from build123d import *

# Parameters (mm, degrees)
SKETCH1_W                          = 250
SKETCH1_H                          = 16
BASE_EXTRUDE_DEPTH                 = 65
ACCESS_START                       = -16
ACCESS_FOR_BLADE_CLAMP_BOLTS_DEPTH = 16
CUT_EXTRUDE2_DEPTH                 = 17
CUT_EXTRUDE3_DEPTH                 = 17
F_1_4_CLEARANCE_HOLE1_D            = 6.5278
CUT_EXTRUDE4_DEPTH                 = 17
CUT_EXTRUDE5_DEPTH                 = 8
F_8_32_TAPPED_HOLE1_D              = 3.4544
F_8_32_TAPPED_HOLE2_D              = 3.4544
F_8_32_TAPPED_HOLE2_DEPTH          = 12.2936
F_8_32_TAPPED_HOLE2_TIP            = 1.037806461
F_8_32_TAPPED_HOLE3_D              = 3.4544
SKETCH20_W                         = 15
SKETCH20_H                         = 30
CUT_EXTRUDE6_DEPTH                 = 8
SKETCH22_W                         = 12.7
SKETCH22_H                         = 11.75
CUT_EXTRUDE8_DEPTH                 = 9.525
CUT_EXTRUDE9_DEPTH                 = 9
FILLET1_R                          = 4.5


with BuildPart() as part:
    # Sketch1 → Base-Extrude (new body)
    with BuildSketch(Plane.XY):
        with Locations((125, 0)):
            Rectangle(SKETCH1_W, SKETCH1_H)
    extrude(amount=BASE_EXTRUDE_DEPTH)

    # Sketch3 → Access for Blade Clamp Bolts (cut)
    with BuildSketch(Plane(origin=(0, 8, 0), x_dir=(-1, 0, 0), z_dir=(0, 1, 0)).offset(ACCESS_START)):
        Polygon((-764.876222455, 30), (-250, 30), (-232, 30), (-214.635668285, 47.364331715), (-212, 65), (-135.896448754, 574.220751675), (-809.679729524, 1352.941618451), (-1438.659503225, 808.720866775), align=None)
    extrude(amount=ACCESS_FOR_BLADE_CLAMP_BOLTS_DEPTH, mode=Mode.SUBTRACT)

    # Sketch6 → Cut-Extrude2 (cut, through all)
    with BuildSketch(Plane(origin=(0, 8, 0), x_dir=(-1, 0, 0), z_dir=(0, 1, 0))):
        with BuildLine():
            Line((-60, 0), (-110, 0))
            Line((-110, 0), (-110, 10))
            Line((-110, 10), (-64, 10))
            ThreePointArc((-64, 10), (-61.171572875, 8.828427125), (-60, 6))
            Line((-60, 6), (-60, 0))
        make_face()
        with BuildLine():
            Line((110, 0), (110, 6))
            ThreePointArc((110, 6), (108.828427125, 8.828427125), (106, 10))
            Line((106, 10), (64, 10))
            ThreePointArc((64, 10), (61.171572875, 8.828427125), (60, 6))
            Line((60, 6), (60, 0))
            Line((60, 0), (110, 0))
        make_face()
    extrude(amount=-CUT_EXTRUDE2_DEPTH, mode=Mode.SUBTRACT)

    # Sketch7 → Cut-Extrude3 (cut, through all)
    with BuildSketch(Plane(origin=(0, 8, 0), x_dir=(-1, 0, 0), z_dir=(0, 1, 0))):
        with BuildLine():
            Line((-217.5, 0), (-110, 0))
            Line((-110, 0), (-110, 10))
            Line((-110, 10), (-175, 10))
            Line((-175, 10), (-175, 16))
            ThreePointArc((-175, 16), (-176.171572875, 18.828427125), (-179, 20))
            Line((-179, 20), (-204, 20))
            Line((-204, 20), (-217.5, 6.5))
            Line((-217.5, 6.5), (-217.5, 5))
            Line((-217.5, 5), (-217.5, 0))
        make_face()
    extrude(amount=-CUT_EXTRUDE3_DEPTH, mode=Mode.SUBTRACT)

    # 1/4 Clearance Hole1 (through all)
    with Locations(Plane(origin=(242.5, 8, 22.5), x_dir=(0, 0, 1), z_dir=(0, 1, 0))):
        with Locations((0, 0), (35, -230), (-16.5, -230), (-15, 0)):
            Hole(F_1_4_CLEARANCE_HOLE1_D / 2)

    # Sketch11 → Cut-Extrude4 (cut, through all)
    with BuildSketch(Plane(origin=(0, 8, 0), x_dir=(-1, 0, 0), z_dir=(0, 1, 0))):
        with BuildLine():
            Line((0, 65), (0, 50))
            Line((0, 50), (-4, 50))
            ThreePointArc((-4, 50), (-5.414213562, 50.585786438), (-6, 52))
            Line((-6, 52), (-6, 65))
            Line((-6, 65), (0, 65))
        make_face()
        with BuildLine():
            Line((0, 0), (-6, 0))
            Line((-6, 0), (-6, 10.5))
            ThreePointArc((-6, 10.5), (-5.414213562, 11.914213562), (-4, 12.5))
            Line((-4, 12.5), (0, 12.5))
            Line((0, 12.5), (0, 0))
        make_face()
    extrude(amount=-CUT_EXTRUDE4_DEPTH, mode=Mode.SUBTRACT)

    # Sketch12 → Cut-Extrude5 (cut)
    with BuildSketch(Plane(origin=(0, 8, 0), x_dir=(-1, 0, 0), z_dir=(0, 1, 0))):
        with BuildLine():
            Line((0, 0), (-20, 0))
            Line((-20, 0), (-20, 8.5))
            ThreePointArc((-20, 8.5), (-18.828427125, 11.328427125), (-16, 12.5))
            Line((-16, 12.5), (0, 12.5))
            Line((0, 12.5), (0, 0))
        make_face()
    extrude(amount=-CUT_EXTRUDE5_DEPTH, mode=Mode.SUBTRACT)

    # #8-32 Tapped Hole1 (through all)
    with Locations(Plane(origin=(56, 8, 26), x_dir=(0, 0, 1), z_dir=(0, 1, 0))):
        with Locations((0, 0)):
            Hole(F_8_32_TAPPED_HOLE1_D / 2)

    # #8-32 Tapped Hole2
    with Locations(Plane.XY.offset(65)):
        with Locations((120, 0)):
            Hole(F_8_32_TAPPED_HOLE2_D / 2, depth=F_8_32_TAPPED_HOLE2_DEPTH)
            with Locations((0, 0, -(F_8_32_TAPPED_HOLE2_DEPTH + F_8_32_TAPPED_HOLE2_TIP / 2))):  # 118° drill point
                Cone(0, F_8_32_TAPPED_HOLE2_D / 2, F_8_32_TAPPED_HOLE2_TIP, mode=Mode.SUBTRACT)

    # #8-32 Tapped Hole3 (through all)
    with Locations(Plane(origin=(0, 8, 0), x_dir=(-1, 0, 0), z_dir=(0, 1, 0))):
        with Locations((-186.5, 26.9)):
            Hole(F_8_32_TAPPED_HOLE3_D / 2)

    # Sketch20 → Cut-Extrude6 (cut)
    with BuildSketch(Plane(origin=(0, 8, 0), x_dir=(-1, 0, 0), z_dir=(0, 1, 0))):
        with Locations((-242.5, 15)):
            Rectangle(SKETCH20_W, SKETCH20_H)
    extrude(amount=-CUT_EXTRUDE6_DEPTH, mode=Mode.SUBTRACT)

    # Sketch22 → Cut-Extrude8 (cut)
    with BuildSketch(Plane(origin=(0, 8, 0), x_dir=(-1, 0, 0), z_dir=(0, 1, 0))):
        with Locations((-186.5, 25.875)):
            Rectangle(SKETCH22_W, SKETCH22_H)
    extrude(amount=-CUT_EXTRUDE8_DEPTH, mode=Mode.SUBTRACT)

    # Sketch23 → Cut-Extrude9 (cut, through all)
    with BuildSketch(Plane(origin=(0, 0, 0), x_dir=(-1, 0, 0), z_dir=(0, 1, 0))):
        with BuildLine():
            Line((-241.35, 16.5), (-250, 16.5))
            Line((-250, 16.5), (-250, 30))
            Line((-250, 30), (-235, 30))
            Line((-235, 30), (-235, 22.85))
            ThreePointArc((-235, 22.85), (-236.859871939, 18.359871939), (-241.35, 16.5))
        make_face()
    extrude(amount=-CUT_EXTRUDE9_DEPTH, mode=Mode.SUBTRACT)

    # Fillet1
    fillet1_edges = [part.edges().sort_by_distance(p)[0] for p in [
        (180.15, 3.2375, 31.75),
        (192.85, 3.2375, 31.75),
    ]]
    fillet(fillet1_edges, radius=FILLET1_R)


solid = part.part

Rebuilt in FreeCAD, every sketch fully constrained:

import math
import FreeCAD as App
import Part
import Sketcher
from FreeCAD import Vector
Q = App.Units.Quantity


def edges_at(feature, points):
    """Names of the edges that pass closest to the given points."""
    edges = feature.Shape.Edges
    near = lambda p: min(range(len(edges)), key=lambda i: edges[i].distToShape(Part.Vertex(*p))[0])
    return sorted({f"Edge{near(p) + 1}" for p in points})


def add_polygon(sketch, points):
    """Adds a closed chain of lines whose ends are joined by coincident constraints."""
    first, n = sketch.GeometryCount, len(points)
    for a, b in zip(points, points[1:] + points[:1]):
        sketch.addGeometry(Part.LineSegment(App.Vector(*a, 0), App.Vector(*b, 0)), False)
    for i in range(n):
        sketch.addConstraint(Sketcher.Constraint("Coincident", first + i, 2, first + (i + 1) % n, 1))

doc = App.newDocument("Part")
body = doc.addObject("PartDesign::Body", "Body")

# Sketch on XY plane
sketch1 = body.newObject("Sketcher::SketchObject", "Sketch")
sketch1.AttachmentSupport = (doc.getObject("XY_Plane"), [""])
sketch1.MapMode = "FlatFace"
add_polygon(sketch1, [(0, 8), (0, -8), (250, -8), (250, 8)])  # lines 0-3
sketch1.addConstraint([
    Sketcher.Constraint("Vertical", 0),
    Sketcher.Constraint("Horizontal", 1),
    Sketcher.Constraint("Vertical", 2),
    Sketcher.Constraint("Horizontal", 3),
    Sketcher.Constraint("Symmetric", 0, 2, 3, 2, -1, 1),
    Sketcher.Constraint("DistanceX", 1, 1, 1, 2, Q("250 mm")),
    Sketcher.Constraint("DistanceY", 0, 2, 0, 1, Q("16 mm")),
])
pad1 = body.newObject("PartDesign::Pad", "Pad")
pad1.Profile = sketch1
pad1.Length = 65

# Sketch on XZ plane
sketch2 = body.newObject("Sketcher::SketchObject", "Sketch001")
sketch2.AttachmentSupport = (doc.getObject("XZ_Plane"), [""])
sketch2.MapMode = "FlatFace"
sketch2.AttachmentOffset = App.Placement(Vector(0, 0, 8), App.Rotation())
add_polygon(sketch2, [(765, 30), (232, 30), (215, 47), (212, 65), (136, 574), (810, 1353), (1439, 809)])  # lines 0-6
sketch2.addConstraint([
    Sketcher.Constraint("Horizontal", 0),
    Sketcher.Constraint("Parallel", 2, 3),
    Sketcher.Constraint("Perpendicular", 4, 5),
    Sketcher.Constraint("Perpendicular", 5, 6),
    Sketcher.Constraint("Equal", 4, 6),
    Sketcher.Constraint("Angle", 1, Q("135 deg")),
    Sketcher.Constraint("DistanceX", -1, 1, 0, 2, Q("232 mm")),
    Sketcher.Constraint("DistanceY", -1, 1, 0, 2, Q("30 mm")),
    Sketcher.Constraint("DistanceX", -1, 1, 2, 2, Q("212 mm")),
    Sketcher.Constraint("DistanceY", -1, 1, 2, 2, Q("65 mm")),
    Sketcher.Constraint("Angle", 2, Q("98.5 deg")),
    Sketcher.Constraint("DistanceX", 0, 2, 0, 1, Q("532.876222 mm")),
    Sketcher.Constraint("DistanceX", -1, 1, 3, 2, Q("135.896449 mm")),
    Sketcher.Constraint("DistanceX", -1, 1, 4, 2, Q("809.67973 mm")),
])
pocket1 = body.newObject("PartDesign::Pocket", "Pocket")
pocket1.Profile = sketch2
pocket1.Length = 16

# Sketch on XZ plane
sketch3 = body.newObject("Sketcher::SketchObject", "Sketch002")
sketch3.AttachmentSupport = (doc.getObject("XZ_Plane"), [""])
sketch3.MapMode = "FlatFace"
sketch3.AttachmentOffset = App.Placement(Vector(0, 0, -8), App.Rotation())
sketch3.addGeometry([
    Part.LineSegment(Vector(110, 0, 0), Vector(60, 0, 0)),  # 0
    Part.LineSegment(Vector(60, 0, 0), Vector(60, 6, 0)),  # 1
    Part.ArcOfCircle(Part.Circle(Vector(64, 6, 0), Vector(0, 0, 1), 4), math.radians(90), math.radians(180)),  # 2
    Part.LineSegment(Vector(64, 10, 0), Vector(110, 10, 0)),  # 3
    Part.LineSegment(Vector(110, 10, 0), Vector(110, 0, 0)),  # 4
    Part.LineSegment(Vector(-110, 0, 0), Vector(-110, 6, 0)),  # 5
    Part.ArcOfCircle(Part.Circle(Vector(-106, 6, 0), Vector(0, 0, 1), 4), math.radians(90), math.radians(180)),  # 6
    Part.LineSegment(Vector(-106, 10, 0), Vector(-64, 10, 0)),  # 7
    Part.ArcOfCircle(Part.Circle(Vector(-64, 6, 0), Vector(0, 0, 1), 4), math.radians(0), math.radians(90)),  # 8
    Part.LineSegment(Vector(-60, 6, 0), Vector(-60, 0, 0)),  # 9
    Part.LineSegment(Vector(-60, 0, 0), Vector(-110, 0, 0)),  # 10
], False)
sketch3.addConstraint([
    Sketcher.Constraint("Coincident", 0, 2, 1, 1),
    Sketcher.Constraint("Tangent", 1, 2, 2, 2),
    Sketcher.Constraint("Tangent", 2, 1, 3, 1),
    Sketcher.Constraint("Coincident", 3, 2, 4, 1),
    Sketcher.Constraint("Coincident", 4, 2, 0, 1),
    Sketcher.Constraint("Tangent", 5, 2, 6, 2),
    Sketcher.Constraint("Tangent", 6, 1, 7, 1),
    Sketcher.Constraint("Tangent", 7, 2, 8, 2),
    Sketcher.Constraint("Tangent", 8, 1, 9, 1),
    Sketcher.Constraint("Coincident", 9, 2, 10, 1),
    Sketcher.Constraint("Coincident", 10, 2, 5, 1),
    Sketcher.Constraint("Horizontal", 0),
    Sketcher.Constraint("Vertical", 1),
    Sketcher.Constraint("Horizontal", 3),
    Sketcher.Constraint("Vertical", 4),
    Sketcher.Constraint("Vertical", 5),
    Sketcher.Constraint("Horizontal", 7),
    Sketcher.Constraint("Vertical", 9),
    Sketcher.Constraint("Horizontal", 10),
    Sketcher.Constraint("Equal", 2, 6),
    Sketcher.Constraint("Equal", 6, 8),
    Sketcher.Constraint("Symmetric", 0, 2, 9, 2, -1, 1),
    Sketcher.Constraint("Symmetric", 4, 2, 10, 2, -2),
    Sketcher.Constraint("Horizontal", 2, 3, 6, 3),
    Sketcher.Constraint("Radius", 2, Q("4 mm")),
    Sketcher.Constraint("DistanceX", 0, 2, 0, 1, Q("50 mm")),
    Sketcher.Constraint("DistanceY", 1, 1, 1, 2, Q("6 mm")),
    Sketcher.Constraint("DistanceX", -1, 1, 2, 3, Q("64 mm")),
])
pocket2 = body.newObject("PartDesign::Pocket", "Pocket001")
pocket2.Profile = sketch3
pocket2.Type = "ThroughAll"
pocket2.Reversed = True

# Sketch on XZ plane
sketch4 = body.newObject("Sketcher::SketchObject", "Sketch003")
sketch4.AttachmentSupport = (doc.getObject("XZ_Plane"), [""])
sketch4.MapMode = "FlatFace"
sketch4.AttachmentOffset = App.Placement(Vector(0, 0, -8), App.Rotation())
sketch4.addGeometry([
    Part.LineSegment(Vector(217.5, 0, 0), Vector(110, 0, 0)),  # 0
    Part.LineSegment(Vector(110, 0, 0), Vector(110, 10, 0)),  # 1
    Part.LineSegment(Vector(110, 10, 0), Vector(175, 10, 0)),  # 2
    Part.LineSegment(Vector(175, 10, 0), Vector(175, 16, 0)),  # 3
    Part.ArcOfCircle(Part.Circle(Vector(179, 16, 0), Vector(0, 0, 1), 4), math.radians(90), math.radians(180)),  # 4
    Part.LineSegment(Vector(179, 20, 0), Vector(204, 20, 0)),  # 5
    Part.LineSegment(Vector(204, 20, 0), Vector(217.5, 6.5, 0)),  # 6
    Part.LineSegment(Vector(217.5, 6.5, 0), Vector(217.5, 0, 0)),  # 7
], False)
sketch4.addConstraint([
    Sketcher.Constraint("Coincident", 0, 2, 1, 1),
    Sketcher.Constraint("Coincident", 1, 2, 2, 1),
    Sketcher.Constraint("Coincident", 2, 2, 3, 1),
    Sketcher.Constraint("Tangent", 3, 2, 4, 2),
    Sketcher.Constraint("Tangent", 4, 1, 5, 1),
    Sketcher.Constraint("Coincident", 5, 2, 6, 1),
    Sketcher.Constraint("Coincident", 6, 2, 7, 1),
    Sketcher.Constraint("Coincident", 7, 2, 0, 1),
    Sketcher.Constraint("Horizontal", 0),
    Sketcher.Constraint("Vertical", 1),
    Sketcher.Constraint("Horizontal", 2),
    Sketcher.Constraint("Vertical", 3),
    Sketcher.Constraint("Horizontal", 5),
    Sketcher.Constraint("Vertical", 7),
    Sketcher.Constraint("PointOnObject", 0, 2, -1),
    Sketcher.Constraint("Radius", 4, Q("4 mm")),
    Sketcher.Constraint("DistanceX", 2, 1, 2, 2, Q("65 mm")),
    Sketcher.Constraint("DistanceX", 5, 1, 5, 2, Q("25 mm")),
    Sketcher.Constraint("DistanceY", 1, 1, 1, 2, Q("10 mm")),
    Sketcher.Constraint("DistanceY", 3, 1, 3, 2, Q("6 mm")),
    Sketcher.Constraint("Angle", 6, Q("-45 deg")),
    Sketcher.Constraint("DistanceX", 0, 2, 0, 1, Q("107.5 mm")),
    Sketcher.Constraint("DistanceX", -1, 1, 4, 3, Q("179 mm")),
])
pocket3 = body.newObject("PartDesign::Pocket", "Pocket002")
pocket3.Profile = sketch4
pocket3.Type = "ThroughAll"
pocket3.Reversed = True

# Sketch on XZ plane
sketch5 = body.newObject("Sketcher::SketchObject", "Sketch004")
sketch5.AttachmentSupport = (doc.getObject("XZ_Plane"), [""])
sketch5.MapMode = "FlatFace"
sketch5.AttachmentOffset = App.Placement(Vector(0, 0, -8), App.Rotation())
sketch5.addGeometry([
    Part.Circle(Vector(242.5, 22.5, 0), Vector(0, 0, 1), 3.3),
    Part.Circle(Vector(12.5, 57.5, 0), Vector(0, 0, 1), 3.3),
    Part.Circle(Vector(12.5, 6, 0), Vector(0, 0, 1), 3.3),
    Part.Circle(Vector(242.5, 7.5, 0), Vector(0, 0, 1), 3.3),
], False)
sketch5.addConstraint([
    Sketcher.Constraint("Equal", 0, 1),
    Sketcher.Constraint("Equal", 1, 2),
    Sketcher.Constraint("Equal", 2, 3),
    Sketcher.Constraint("Vertical", 1, 3, 2, 3),
    Sketcher.Constraint("Vertical", 0, 3, 3, 3),
    Sketcher.Constraint("DistanceY", -1, 1, 2, 3, Q("6 mm")),
    Sketcher.Constraint("DistanceX", 1, 3, 0, 3, Q("230 mm")),
    Sketcher.Constraint("DistanceY", 0, 3, 1, 3, Q("35 mm")),
    Sketcher.Constraint("DistanceY", 3, 3, 0, 3, Q("15 mm")),
    Sketcher.Constraint("Diameter", 0, Q("6.5278 mm")),
    Sketcher.Constraint("DistanceX", -1, 1, 0, 3, Q("242.5 mm")),
    Sketcher.Constraint("DistanceY", -1, 1, 0, 3, Q("22.5 mm")),
])
doc.recompute()
hole = body.newObject("PartDesign::Hole", "Hole")
hole.Profile = sketch5
hole.ThreadType = "None"
hole.Diameter = 6.5278
hole.DepthType = "ThroughAll"
hole.Reversed = True

# Sketch on XZ plane
sketch6 = body.newObject("Sketcher::SketchObject", "Sketch005")
sketch6.AttachmentSupport = (doc.getObject("XZ_Plane"), [""])
sketch6.MapMode = "FlatFace"
sketch6.AttachmentOffset = App.Placement(Vector(0, 0, -8), App.Rotation())
sketch6.addGeometry([
    Part.LineSegment(Vector(0, 50, 0), Vector(0, 65, 0)),  # 0
    Part.LineSegment(Vector(0, 65, 0), Vector(6, 65, 0)),  # 1
    Part.LineSegment(Vector(6, 65, 0), Vector(6, 52, 0)),  # 2
    Part.ArcOfCircle(Part.Circle(Vector(4, 52, 0), Vector(0, 0, 1), 2), math.radians(-90), math.radians(0)),  # 3
    Part.LineSegment(Vector(4, 50, 0), Vector(0, 50, 0)),  # 4
    Part.LineSegment(Vector(6, 0, 0), Vector(0, 0, 0)),  # 5
    Part.LineSegment(Vector(0, 0, 0), Vector(0, 12.5, 0)),  # 6
    Part.LineSegment(Vector(0, 12.5, 0), Vector(4, 12.5, 0)),  # 7
    Part.ArcOfCircle(Part.Circle(Vector(4, 10.5, 0), Vector(0, 0, 1), 2), math.radians(0), math.radians(90)),  # 8
    Part.LineSegment(Vector(6, 10.5, 0), Vector(6, 0, 0)),  # 9
], False)
sketch6.addConstraint([
    Sketcher.Constraint("Coincident", 0, 2, 1, 1),
    Sketcher.Constraint("Coincident", 1, 2, 2, 1),
    Sketcher.Constraint("Tangent", 2, 2, 3, 2),
    Sketcher.Constraint("Tangent", 3, 1, 4, 1),
    Sketcher.Constraint("Coincident", 4, 2, 0, 1),
    Sketcher.Constraint("Coincident", 5, 2, 6, 1),
    Sketcher.Constraint("Coincident", 6, 2, 7, 1),
    Sketcher.Constraint("Tangent", 7, 2, 8, 2),
    Sketcher.Constraint("Tangent", 8, 1, 9, 1),
    Sketcher.Constraint("Coincident", 9, 2, 5, 1),
    Sketcher.Constraint("Vertical", 0),
    Sketcher.Constraint("Horizontal", 1),
    Sketcher.Constraint("Vertical", 2),
    Sketcher.Constraint("Horizontal", 4),
    Sketcher.Constraint("Horizontal", 5),
    Sketcher.Constraint("Vertical", 6),
    Sketcher.Constraint("Horizontal", 7),
    Sketcher.Constraint("Vertical", 9),
    Sketcher.Constraint("Coincident", 5, 2, -1, 1),
    Sketcher.Constraint("Equal", 3, 8),
    Sketcher.Constraint("PointOnObject", 0, 2, -2),
    Sketcher.Constraint("Vertical", 3, 3, 8, 3),
    Sketcher.Constraint("Radius", 3, Q("2 mm")),
    Sketcher.Constraint("DistanceX", 1, 1, 1, 2, Q("6 mm")),
    Sketcher.Constraint("DistanceY", 0, 1, 0, 2, Q("15 mm")),
    Sketcher.Constraint("DistanceY", 6, 1, 6, 2, Q("12.5 mm")),
    Sketcher.Constraint("DistanceY", -1, 1, 3, 3, Q("52 mm")),
])
pocket4 = body.newObject("PartDesign::Pocket", "Pocket003")
pocket4.Profile = sketch6
pocket4.Type = "ThroughAll"
pocket4.Reversed = True

# Sketch on XZ plane
sketch7 = body.newObject("Sketcher::SketchObject", "Sketch006")
sketch7.AttachmentSupport = (doc.getObject("XZ_Plane"), [""])
sketch7.MapMode = "FlatFace"
sketch7.AttachmentOffset = App.Placement(Vector(0, 0, -8), App.Rotation())
sketch7.addGeometry([
    Part.LineSegment(Vector(20, 0, 0), Vector(0, 0, 0)),  # 0
    Part.LineSegment(Vector(0, 0, 0), Vector(0, 12.5, 0)),  # 1
    Part.LineSegment(Vector(0, 12.5, 0), Vector(16, 12.5, 0)),  # 2
    Part.ArcOfCircle(Part.Circle(Vector(16, 8.5, 0), Vector(0, 0, 1), 4), math.radians(0), math.radians(90)),  # 3
    Part.LineSegment(Vector(20, 8.5, 0), Vector(20, 0, 0)),  # 4
], False)
sketch7.addConstraint([
    Sketcher.Constraint("Coincident", 0, 2, 1, 1),
    Sketcher.Constraint("Coincident", 1, 2, 2, 1),
    Sketcher.Constraint("Tangent", 2, 2, 3, 2),
    Sketcher.Constraint("Tangent", 3, 1, 4, 1),
    Sketcher.Constraint("Coincident", 4, 2, 0, 1),
    Sketcher.Constraint("Horizontal", 0),
    Sketcher.Constraint("Vertical", 1),
    Sketcher.Constraint("Horizontal", 2),
    Sketcher.Constraint("Vertical", 4),
    Sketcher.Constraint("Coincident", 0, 2, -1, 1),
    Sketcher.Constraint("Radius", 3, Q("4 mm")),
    Sketcher.Constraint("DistanceX", 0, 2, 0, 1, Q("20 mm")),
    Sketcher.Constraint("DistanceY", 1, 1, 1, 2, Q("12.5 mm")),
])
pocket5 = body.newObject("PartDesign::Pocket", "Pocket004")
pocket5.Profile = sketch7
pocket5.Length = 8
pocket5.Reversed = True

# Sketch on XZ plane
sketch8 = body.newObject("Sketcher::SketchObject", "Sketch007")
sketch8.AttachmentSupport = (doc.getObject("XZ_Plane"), [""])
sketch8.MapMode = "FlatFace"
sketch8.AttachmentOffset = App.Placement(Vector(0, 0, -8), App.Rotation())
sketch8.addGeometry(Part.Circle(Vector(56, 26, 0), Vector(0, 0, 1), 1.7), False)
sketch8.addConstraint([
    Sketcher.Constraint("DistanceX", -1, 1, 0, 3, Q("56 mm")),
    Sketcher.Constraint("DistanceY", -1, 1, 0, 3, Q("26 mm")),
    Sketcher.Constraint("Diameter", 0, Q("3.4544 mm")),
])
doc.recompute()
hole2 = body.newObject("PartDesign::Hole", "Hole001")
hole2.Profile = sketch8
hole2.ThreadType = "None"
hole2.Diameter = 3.4544
hole2.DepthType = "ThroughAll"
hole2.Reversed = True

# Sketch on XY plane
sketch9 = body.newObject("Sketcher::SketchObject", "Sketch008")
sketch9.AttachmentSupport = (doc.getObject("XY_Plane"), [""])
sketch9.MapMode = "FlatFace"
sketch9.AttachmentOffset = App.Placement(Vector(0, 0, 65), App.Rotation())
sketch9.addGeometry(Part.Circle(Vector(120, 0, 0), Vector(0, 0, 1), 1.7), False)
sketch9.addConstraint([
    Sketcher.Constraint("PointOnObject", 0, 3, -1),
    Sketcher.Constraint("DistanceX", -1, 1, 0, 3, Q("120 mm")),
    Sketcher.Constraint("Diameter", 0, Q("3.4544 mm")),
])
doc.recompute()
hole3 = body.newObject("PartDesign::Hole", "Hole002")
hole3.Profile = sketch9
hole3.ThreadType = "None"
hole3.Diameter = 3.4544
hole3.DepthType = "Dimension"
hole3.Depth = 12.2936
hole3.DrillPoint = "Angled"
hole3.DrillPointAngle = 118

# Sketch on XZ plane
sketch10 = body.newObject("Sketcher::SketchObject", "Sketch009")
sketch10.AttachmentSupport = (doc.getObject("XZ_Plane"), [""])
sketch10.MapMode = "FlatFace"
sketch10.AttachmentOffset = App.Placement(Vector(0, 0, -8), App.Rotation())
sketch10.addGeometry(Part.Circle(Vector(186.5, 26.9, 0), Vector(0, 0, 1), 1.7), False)
sketch10.addConstraint([
    Sketcher.Constraint("Diameter", 0, Q("3.4544 mm")),
    Sketcher.Constraint("DistanceX", -1, 1, 0, 3, Q("186.5 mm")),
    Sketcher.Constraint("DistanceY", -1, 1, 0, 3, Q("26.9 mm")),
])
doc.recompute()
hole4 = body.newObject("PartDesign::Hole", "Hole003")
hole4.Profile = sketch10
hole4.ThreadType = "None"
hole4.Diameter = 3.4544
hole4.DepthType = "ThroughAll"
hole4.Reversed = True

# Sketch on XZ plane
sketch11 = body.newObject("Sketcher::SketchObject", "Sketch010")
sketch11.AttachmentSupport = (doc.getObject("XZ_Plane"), [""])
sketch11.MapMode = "FlatFace"
sketch11.AttachmentOffset = App.Placement(Vector(0, 0, -8), App.Rotation())
add_polygon(sketch11, [(250, 30), (250, 0), (235, 0), (235, 30)])  # lines 0-3
sketch11.addConstraint([
    Sketcher.Constraint("Vertical", 0),
    Sketcher.Constraint("Horizontal", 1),
    Sketcher.Constraint("Vertical", 2),
    Sketcher.Constraint("Horizontal", 3),
    Sketcher.Constraint("PointOnObject", 0, 2, -1),
    Sketcher.Constraint("DistanceX", 1, 2, 1, 1, Q("15 mm")),
    Sketcher.Constraint("DistanceY", 0, 2, 0, 1, Q("30 mm")),
    Sketcher.Constraint("DistanceX", -1, 1, 0, 2, Q("250 mm")),
])
pocket6 = body.newObject("PartDesign::Pocket", "Pocket005")
pocket6.Profile = sketch11
pocket6.Length = 8
pocket6.Reversed = True

# Sketch on XZ plane
sketch12 = body.newObject("Sketcher::SketchObject", "Sketch011")
sketch12.AttachmentSupport = (doc.getObject("XZ_Plane"), [""])
sketch12.MapMode = "FlatFace"
sketch12.AttachmentOffset = App.Placement(Vector(0, 0, -8), App.Rotation())
add_polygon(sketch12, [(193, 32), (193, 20), (180, 20), (180, 32)])  # lines 0-3
sketch12.addConstraint([
    Sketcher.Constraint("Vertical", 0),
    Sketcher.Constraint("Horizontal", 1),
    Sketcher.Constraint("Vertical", 2),
    Sketcher.Constraint("Horizontal", 3),
    Sketcher.Constraint("DistanceX", 1, 2, 1, 1, Q("12.7 mm")),
    Sketcher.Constraint("DistanceY", -1, 1, 0, 2, Q("20 mm")),
    Sketcher.Constraint("DistanceY", 0, 2, 0, 1, Q("11.75 mm")),
    Sketcher.Constraint("DistanceX", -1, 1, 0, 2, Q("192.85 mm")),
])
pocket7 = body.newObject("PartDesign::Pocket", "Pocket006")
pocket7.Profile = sketch12
pocket7.Length = 9.525
pocket7.Reversed = True

# Sketch on XZ plane
sketch13 = body.newObject("Sketcher::SketchObject", "Sketch012")
sketch13.AttachmentSupport = (doc.getObject("XZ_Plane"), [""])
sketch13.MapMode = "FlatFace"
sketch13.addGeometry([
    Part.LineSegment(Vector(250, 16, 0), Vector(241, 16, 0)),  # 0
    Part.ArcOfCircle(Part.Circle(Vector(241, 23, 0), Vector(0, 0, 1), 6), math.radians(180), math.radians(270)),  # 1
    Part.LineSegment(Vector(235, 23, 0), Vector(235, 30, 0)),  # 2
    Part.LineSegment(Vector(235, 30, 0), Vector(250, 30, 0)),  # 3
    Part.LineSegment(Vector(250, 30, 0), Vector(250, 16, 0)),  # 4
], False)
sketch13.addConstraint([
    Sketcher.Constraint("Tangent", 0, 2, 1, 2),
    Sketcher.Constraint("Tangent", 1, 1, 2, 1),
    Sketcher.Constraint("Coincident", 2, 2, 3, 1),
    Sketcher.Constraint("Coincident", 3, 2, 4, 1),
    Sketcher.Constraint("Coincident", 4, 2, 0, 1),
    Sketcher.Constraint("Horizontal", 0),
    Sketcher.Constraint("Vertical", 2),
    Sketcher.Constraint("Horizontal", 3),
    Sketcher.Constraint("Vertical", 4),
    Sketcher.Constraint("DistanceX", 3, 1, 3, 2, Q("15 mm")),
    Sketcher.Constraint("Radius", 1, Q("6.35 mm")),
    Sketcher.Constraint("DistanceY", 4, 2, 4, 1, Q("13.5 mm")),
    Sketcher.Constraint("DistanceX", -1, 1, 1, 1, Q("235 mm")),
    Sketcher.Constraint("DistanceY", -1, 1, 2, 2, Q("30 mm")),
])
pocket8 = body.newObject("PartDesign::Pocket", "Pocket007")
pocket8.Profile = sketch13
pocket8.Type = "ThroughAll"
pocket8.Reversed = True
doc.recompute()

fillet = body.newObject("PartDesign::Fillet", "Fillet")
fillet.Base = (pocket8, edges_at(pocket8, [(180.15, 3.237, 31.75), (192.85, 3.237, 31.75)]))
fillet.Radius = 4.5

doc.recompute()
